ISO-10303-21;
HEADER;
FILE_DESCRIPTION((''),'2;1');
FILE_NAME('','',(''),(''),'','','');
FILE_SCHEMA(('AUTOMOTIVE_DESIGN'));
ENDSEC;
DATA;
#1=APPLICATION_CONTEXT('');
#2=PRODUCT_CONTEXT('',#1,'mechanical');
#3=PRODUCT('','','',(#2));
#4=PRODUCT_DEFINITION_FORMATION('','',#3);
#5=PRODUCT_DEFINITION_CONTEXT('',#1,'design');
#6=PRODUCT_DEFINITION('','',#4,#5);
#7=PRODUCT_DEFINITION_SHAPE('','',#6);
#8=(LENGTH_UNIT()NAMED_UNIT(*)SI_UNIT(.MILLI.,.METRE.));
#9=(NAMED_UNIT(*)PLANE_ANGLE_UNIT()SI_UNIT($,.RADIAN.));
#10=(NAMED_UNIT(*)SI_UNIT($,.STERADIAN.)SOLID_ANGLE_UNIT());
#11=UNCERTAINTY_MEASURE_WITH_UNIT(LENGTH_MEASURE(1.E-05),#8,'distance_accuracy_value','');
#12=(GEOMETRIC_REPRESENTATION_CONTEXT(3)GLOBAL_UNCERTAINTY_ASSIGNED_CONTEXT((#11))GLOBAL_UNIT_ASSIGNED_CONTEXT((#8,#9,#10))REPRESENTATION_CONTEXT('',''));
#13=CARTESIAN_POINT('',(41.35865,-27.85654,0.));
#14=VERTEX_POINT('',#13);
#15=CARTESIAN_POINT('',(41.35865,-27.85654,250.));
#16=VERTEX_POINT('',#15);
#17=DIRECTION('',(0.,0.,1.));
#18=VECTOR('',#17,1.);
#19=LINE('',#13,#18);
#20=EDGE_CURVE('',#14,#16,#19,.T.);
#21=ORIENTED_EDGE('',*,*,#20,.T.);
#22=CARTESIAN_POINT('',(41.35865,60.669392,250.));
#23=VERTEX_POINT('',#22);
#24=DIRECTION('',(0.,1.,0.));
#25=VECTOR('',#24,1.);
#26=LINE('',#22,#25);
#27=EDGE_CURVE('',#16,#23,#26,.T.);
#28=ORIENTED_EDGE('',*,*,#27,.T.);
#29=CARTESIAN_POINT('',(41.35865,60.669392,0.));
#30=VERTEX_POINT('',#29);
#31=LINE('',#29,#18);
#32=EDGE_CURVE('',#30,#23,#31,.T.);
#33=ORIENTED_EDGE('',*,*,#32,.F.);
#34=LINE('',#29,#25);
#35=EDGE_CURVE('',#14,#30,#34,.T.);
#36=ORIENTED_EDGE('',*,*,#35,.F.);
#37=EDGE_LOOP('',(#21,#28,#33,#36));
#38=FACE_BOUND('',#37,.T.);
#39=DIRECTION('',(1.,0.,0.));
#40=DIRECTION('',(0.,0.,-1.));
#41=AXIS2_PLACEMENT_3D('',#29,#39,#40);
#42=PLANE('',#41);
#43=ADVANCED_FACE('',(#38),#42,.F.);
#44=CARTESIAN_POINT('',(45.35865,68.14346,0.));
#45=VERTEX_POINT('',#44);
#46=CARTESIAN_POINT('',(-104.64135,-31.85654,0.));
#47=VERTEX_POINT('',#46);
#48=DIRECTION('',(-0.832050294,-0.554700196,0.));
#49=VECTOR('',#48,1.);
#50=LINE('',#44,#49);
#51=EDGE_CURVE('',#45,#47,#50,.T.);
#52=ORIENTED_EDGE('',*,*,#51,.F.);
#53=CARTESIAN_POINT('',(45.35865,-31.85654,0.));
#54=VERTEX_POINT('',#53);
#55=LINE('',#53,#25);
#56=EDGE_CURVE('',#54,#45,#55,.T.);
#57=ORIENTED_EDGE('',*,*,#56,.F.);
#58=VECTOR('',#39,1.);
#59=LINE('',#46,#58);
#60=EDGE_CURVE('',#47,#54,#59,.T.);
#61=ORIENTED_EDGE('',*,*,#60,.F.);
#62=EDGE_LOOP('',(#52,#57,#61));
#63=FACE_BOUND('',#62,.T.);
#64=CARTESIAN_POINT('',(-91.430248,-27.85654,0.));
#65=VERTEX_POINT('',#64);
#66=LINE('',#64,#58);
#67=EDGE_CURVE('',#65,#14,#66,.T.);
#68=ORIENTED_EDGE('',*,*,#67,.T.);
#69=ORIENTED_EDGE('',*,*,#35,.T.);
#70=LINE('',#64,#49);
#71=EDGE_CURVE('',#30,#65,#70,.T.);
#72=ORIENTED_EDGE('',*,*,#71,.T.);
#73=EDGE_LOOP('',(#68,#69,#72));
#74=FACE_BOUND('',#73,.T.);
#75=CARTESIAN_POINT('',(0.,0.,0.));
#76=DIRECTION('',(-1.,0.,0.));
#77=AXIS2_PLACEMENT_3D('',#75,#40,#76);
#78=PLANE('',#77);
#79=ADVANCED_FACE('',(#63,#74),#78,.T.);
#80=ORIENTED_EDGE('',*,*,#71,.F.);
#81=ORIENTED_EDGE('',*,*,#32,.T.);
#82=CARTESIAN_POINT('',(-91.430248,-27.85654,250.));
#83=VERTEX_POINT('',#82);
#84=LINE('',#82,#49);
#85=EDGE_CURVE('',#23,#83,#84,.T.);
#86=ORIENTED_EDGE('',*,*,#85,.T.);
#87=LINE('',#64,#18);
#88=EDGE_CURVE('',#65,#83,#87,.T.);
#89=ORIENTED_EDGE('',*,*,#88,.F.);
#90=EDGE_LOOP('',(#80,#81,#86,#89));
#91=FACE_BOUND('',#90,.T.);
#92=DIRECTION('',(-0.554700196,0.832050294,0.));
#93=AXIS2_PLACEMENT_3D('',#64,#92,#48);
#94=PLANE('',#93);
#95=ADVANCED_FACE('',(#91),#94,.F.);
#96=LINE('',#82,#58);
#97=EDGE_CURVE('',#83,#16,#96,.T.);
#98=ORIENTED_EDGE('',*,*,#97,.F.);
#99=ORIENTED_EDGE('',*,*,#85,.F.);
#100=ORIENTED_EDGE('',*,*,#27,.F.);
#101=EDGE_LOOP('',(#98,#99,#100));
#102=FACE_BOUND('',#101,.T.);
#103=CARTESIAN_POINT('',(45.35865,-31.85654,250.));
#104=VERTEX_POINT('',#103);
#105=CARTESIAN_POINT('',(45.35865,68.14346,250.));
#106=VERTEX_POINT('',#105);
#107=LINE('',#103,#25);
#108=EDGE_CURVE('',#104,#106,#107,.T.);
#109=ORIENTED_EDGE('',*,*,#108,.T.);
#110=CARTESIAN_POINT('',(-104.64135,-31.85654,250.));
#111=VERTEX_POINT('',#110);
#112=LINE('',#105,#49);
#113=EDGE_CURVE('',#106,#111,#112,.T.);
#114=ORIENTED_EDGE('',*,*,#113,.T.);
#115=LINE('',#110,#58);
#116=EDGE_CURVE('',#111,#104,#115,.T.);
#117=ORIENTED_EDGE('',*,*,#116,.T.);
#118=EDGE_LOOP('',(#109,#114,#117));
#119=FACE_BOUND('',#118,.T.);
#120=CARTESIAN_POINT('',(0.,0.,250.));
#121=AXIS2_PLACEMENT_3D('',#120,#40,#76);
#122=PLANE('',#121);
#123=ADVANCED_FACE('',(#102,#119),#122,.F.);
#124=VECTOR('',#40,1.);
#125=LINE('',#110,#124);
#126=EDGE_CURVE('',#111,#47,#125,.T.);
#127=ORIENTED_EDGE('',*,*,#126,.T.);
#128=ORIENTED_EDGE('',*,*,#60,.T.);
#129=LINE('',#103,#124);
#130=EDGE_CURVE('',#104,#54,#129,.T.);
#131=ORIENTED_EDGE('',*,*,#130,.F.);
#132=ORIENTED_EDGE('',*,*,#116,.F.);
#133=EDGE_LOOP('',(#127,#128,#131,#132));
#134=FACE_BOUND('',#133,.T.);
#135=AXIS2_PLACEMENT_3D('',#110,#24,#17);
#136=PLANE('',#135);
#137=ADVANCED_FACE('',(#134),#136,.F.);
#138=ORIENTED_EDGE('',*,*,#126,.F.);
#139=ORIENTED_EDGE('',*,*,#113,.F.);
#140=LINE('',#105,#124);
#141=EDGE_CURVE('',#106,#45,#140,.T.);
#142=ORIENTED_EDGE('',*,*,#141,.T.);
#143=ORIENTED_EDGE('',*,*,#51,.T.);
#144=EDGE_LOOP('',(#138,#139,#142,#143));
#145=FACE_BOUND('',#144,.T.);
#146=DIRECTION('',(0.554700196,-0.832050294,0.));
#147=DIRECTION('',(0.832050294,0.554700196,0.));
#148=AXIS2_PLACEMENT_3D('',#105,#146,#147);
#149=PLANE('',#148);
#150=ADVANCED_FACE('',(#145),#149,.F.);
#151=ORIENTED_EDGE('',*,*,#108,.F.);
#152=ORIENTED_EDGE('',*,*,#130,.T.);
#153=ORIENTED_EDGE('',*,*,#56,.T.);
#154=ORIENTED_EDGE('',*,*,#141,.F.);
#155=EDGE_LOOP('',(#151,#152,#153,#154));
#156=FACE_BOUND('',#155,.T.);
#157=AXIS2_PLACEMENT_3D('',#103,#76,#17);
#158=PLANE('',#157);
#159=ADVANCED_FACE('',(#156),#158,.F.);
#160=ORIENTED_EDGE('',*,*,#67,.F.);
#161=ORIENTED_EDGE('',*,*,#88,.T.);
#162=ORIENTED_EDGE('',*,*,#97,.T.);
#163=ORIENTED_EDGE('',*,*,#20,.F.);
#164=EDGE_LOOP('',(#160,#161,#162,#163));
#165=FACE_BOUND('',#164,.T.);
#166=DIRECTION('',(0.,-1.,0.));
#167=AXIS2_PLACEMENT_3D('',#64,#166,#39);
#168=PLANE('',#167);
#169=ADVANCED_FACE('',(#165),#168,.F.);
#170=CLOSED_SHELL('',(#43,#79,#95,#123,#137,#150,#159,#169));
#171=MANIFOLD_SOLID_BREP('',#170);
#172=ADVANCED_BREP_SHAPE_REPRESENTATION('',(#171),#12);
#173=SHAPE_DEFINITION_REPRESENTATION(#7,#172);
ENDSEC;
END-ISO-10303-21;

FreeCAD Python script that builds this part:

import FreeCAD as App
import Part
import Sketcher
from FreeCAD import Vector
Q = App.Units.Quantity

doc = App.newDocument("Part")
params = doc.addObject("Spreadsheet::Sheet", "Params")
for row, (alias, value) in enumerate([
    ("sketch1_width", "150 mm"),
    ("sketch1_height", "100 mm"),
    ("pad1_length", "250 mm"),
], start=1):
    params.set(f"A{row}", alias)
    params.set(f"B{row}", "=" + value)
    params.setAlias(f"B{row}", alias)

body = doc.addObject("PartDesign::Body", "Body")

# Sketch on XY plane
sketch1 = doc.addObject("Sketcher::SketchObject", "Sketch")
body.addObject(sketch1)
sketch1.AttachmentSupport = (doc.XY_Plane, [""])
sketch1.MapMode = "FlatFace"
sketch1.addGeometry(Part.LineSegment(Vector(-104.64135, -31.85654, 0), Vector(45.35865, -31.85654, 0)), False)
sketch1.addGeometry(Part.LineSegment(Vector(45.35865, -31.85654, 0), Vector(45.35865, 68.14346, 0)), False)
sketch1.addGeometry(Part.LineSegment(Vector(45.35865, 68.14346, 0), Vector(-104.64135, -31.85654, 0)), False)
sketch1.addConstraint(Sketcher.Constraint("Coincident", 0, 2, 1, 1))
sketch1.addConstraint(Sketcher.Constraint("Coincident", 1, 2, 2, 1))
sketch1.addConstraint(Sketcher.Constraint("Coincident", 2, 2, 0, 1))
sketch1.addConstraint(Sketcher.Constraint("Horizontal", 0))
sketch1.addConstraint(Sketcher.Constraint("Vertical", 1))
sketch1.addConstraint(Sketcher.Constraint("DistanceX", 0, 1, 0, 2, Q("150 mm")))
sketch1.addConstraint(Sketcher.Constraint("DistanceY", 1, 1, 1, 2, Q("100 mm")))
sketch1.addConstraint(Sketcher.Constraint("DistanceX", -1, 1, 0, 2, Q("45.35865 mm")))
sketch1.addConstraint(Sketcher.Constraint("DistanceY", 0, 2, -1, 1, Q("31.85654 mm")))
sketch1.setExpression("Constraints[5]", "Params.sketch1_width")
sketch1.setExpression("Constraints[6]", "Params.sketch1_height")
pad1 = doc.addObject("PartDesign::Pad", "Pad")
body.addObject(pad1)
pad1.Profile = sketch1
pad1.setExpression("Length", "Params.pad1_length")

# Sketch on XY plane
sketch2 = doc.addObject("Sketcher::SketchObject", "Sketch001")
body.addObject(sketch2)
sketch2.AttachmentSupport = (doc.XY_Plane, [""])
sketch2.MapMode = "FlatFace"
sketch2.AttachmentOffset = App.Placement(Vector(0, 0, 250), App.Rotation())
sketch2.addGeometry(Part.LineSegment(Vector(41.35865, -27.85654, 0), Vector(41.35865, 60.669392, 0)), False)
sketch2.addGeometry(Part.LineSegment(Vector(41.35865, 60.669392, 0), Vector(-91.430248, -27.85654, 0)), False)
sketch2.addGeometry(Part.LineSegment(Vector(-91.430248, -27.85654, 0), Vector(41.35865, -27.85654, 0)), False)
sketch2.addConstraint(Sketcher.Constraint("Coincident", 0, 2, 1, 1))
sketch2.addConstraint(Sketcher.Constraint("Coincident", 1, 2, 2, 1))
sketch2.addConstraint(Sketcher.Constraint("Coincident", 2, 2, 0, 1))
sketch2.addConstraint(Sketcher.Constraint("Vertical", 0))
sketch2.addConstraint(Sketcher.Constraint("Horizontal", 2))
sketch2.addConstraint(Sketcher.Constraint("DistanceY", 0, 1, 0, 2, Q("88.525932 mm")))
sketch2.addConstraint(Sketcher.Constraint("DistanceX", 2, 1, 2, 2, Q("132.788897 mm")))
sketch2.addConstraint(Sketcher.Constraint("DistanceX", -1, 1, 0, 2, Q("41.35865 mm")))
sketch2.addConstraint(Sketcher.Constraint("DistanceY", -1, 1, 0, 2, Q("60.669392 mm")))
pocket1 = doc.addObject("PartDesign::Pocket", "Pocket")
body.addObject(pocket1)
pocket1.Profile = sketch2
pocket1.Type = "ThroughAll"

doc.recompute()
